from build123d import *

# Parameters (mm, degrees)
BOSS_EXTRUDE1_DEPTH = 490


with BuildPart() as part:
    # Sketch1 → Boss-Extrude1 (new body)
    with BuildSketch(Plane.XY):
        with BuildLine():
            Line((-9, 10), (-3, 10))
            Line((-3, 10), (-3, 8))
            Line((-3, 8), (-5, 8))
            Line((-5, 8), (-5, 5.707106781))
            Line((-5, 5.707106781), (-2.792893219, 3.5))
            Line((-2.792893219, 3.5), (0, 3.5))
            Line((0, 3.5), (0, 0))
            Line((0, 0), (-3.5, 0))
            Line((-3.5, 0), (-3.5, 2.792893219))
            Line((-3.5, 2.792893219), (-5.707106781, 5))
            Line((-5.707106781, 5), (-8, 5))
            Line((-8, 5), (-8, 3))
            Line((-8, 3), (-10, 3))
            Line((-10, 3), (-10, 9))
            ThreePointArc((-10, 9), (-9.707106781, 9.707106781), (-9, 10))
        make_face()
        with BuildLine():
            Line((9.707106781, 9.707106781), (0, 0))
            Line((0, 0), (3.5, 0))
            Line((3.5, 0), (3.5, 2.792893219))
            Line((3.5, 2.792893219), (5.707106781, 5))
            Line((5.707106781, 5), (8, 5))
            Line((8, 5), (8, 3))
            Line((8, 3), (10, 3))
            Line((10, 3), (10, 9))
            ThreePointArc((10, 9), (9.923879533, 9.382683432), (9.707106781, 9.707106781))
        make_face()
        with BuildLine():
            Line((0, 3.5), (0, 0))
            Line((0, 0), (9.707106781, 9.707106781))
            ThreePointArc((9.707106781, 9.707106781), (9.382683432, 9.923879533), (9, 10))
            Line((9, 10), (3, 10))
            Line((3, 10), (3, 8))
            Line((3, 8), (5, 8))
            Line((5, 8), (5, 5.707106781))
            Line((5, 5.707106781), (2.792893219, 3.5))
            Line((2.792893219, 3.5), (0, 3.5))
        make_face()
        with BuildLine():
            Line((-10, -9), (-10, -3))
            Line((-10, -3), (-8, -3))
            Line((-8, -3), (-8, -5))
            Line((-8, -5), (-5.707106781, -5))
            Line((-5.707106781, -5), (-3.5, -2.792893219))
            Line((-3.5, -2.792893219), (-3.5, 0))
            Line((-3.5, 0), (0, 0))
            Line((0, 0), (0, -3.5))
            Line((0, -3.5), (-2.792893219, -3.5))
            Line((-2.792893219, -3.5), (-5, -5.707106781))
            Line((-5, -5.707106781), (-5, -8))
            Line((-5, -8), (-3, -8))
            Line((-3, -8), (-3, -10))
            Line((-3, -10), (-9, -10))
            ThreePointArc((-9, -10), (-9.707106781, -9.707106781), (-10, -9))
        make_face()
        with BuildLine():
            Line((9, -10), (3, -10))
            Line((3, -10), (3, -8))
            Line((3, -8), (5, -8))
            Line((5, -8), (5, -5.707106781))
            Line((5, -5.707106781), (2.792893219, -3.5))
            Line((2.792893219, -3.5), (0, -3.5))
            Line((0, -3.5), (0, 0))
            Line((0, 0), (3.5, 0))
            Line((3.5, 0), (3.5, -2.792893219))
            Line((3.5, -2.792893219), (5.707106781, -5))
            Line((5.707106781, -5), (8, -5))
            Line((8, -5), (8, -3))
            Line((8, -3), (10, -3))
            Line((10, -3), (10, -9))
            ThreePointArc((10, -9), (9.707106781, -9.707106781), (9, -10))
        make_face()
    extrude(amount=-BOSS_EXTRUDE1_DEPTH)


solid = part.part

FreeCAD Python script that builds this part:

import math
import FreeCAD as App
import Part
import Sketcher
Q = App.Units.Quantity

doc = App.newDocument("Part")
body = doc.addObject("PartDesign::Body", "Body")

# Sketch on XY plane
sketch1 = body.newObject("Sketcher::SketchObject", "Sketch")
sketch1.AttachmentSupport = (doc.getObject("XY_Plane"), [""])
sketch1.MapMode = "FlatFace"
sketch1.addGeometry(Part.LineSegment(App.Vector(-3, 10, 0), App.Vector(-9, 10, 0)), False)
sketch1.addGeometry(Part.ArcOfCircle(Part.Circle(App.Vector(-9, 9, 0), App.Vector(0, 0, 1), 1), math.radians(90), math.radians(180)), False)
sketch1.addGeometry(Part.LineSegment(App.Vector(-10, 9, 0), App.Vector(-10, 3, 0)), False)
sketch1.addGeometry(Part.LineSegment(App.Vector(-10, 3, 0), App.Vector(-8, 3, 0)), False)
sketch1.addGeometry(Part.LineSegment(App.Vector(-8, 3, 0), App.Vector(-8, 5, 0)), False)
sketch1.addGeometry(Part.LineSegment(App.Vector(-8, 5, 0), App.Vector(-5.7, 5, 0)), False)
sketch1.addGeometry(Part.LineSegment(App.Vector(-5.7, 5, 0), App.Vector(-3.5, 2.8, 0)), False)
sketch1.addGeometry(Part.LineSegment(App.Vector(-3.5, 2.8, 0), App.Vector(-3.5, -2.8, 0)), False)
sketch1.addGeometry(Part.LineSegment(App.Vector(-3.5, -2.8, 0), App.Vector(-5.7, -5, 0)), False)
sketch1.addGeometry(Part.LineSegment(App.Vector(-5.7, -5, 0), App.Vector(-8, -5, 0)), False)
sketch1.addGeometry(Part.LineSegment(App.Vector(-8, -5, 0), App.Vector(-8, -3, 0)), False)
sketch1.addGeometry(Part.LineSegment(App.Vector(-8, -3, 0), App.Vector(-10, -3, 0)), False)
sketch1.addGeometry(Part.LineSegment(App.Vector(-10, -3, 0), App.Vector(-10, -9, 0)), False)
sketch1.addGeometry(Part.ArcOfCircle(Part.Circle(App.Vector(-9, -9, 0), App.Vector(0, 0, 1), 1), math.radians(-180), math.radians(-90)), False)
sketch1.addGeometry(Part.LineSegment(App.Vector(-9, -10, 0), App.Vector(-3, -10, 0)), False)
sketch1.addGeometry(Part.LineSegment(App.Vector(-3, -10, 0), App.Vector(-3, -8, 0)), False)
sketch1.addGeometry(Part.LineSegment(App.Vector(-3, -8, 0), App.Vector(-5, -8, 0)), False)
sketch1.addGeometry(Part.LineSegment(App.Vector(-5, -8, 0), App.Vector(-5, -5.7, 0)), False)
sketch1.addGeometry(Part.LineSegment(App.Vector(-5, -5.7, 0), App.Vector(-2.8, -3.5, 0)), False)
sketch1.addGeometry(Part.LineSegment(App.Vector(-2.8, -3.5, 0), App.Vector(2.8, -3.5, 0)), False)
sketch1.addGeometry(Part.LineSegment(App.Vector(2.8, -3.5, 0), App.Vector(5, -5.7, 0)), False)
sketch1.addGeometry(Part.LineSegment(App.Vector(5, -5.7, 0), App.Vector(5, -8, 0)), False)
sketch1.addGeometry(Part.LineSegment(App.Vector(5, -8, 0), App.Vector(3, -8, 0)), False)
sketch1.addGeometry(Part.LineSegment(App.Vector(3, -8, 0), App.Vector(3, -10, 0)), False)
sketch1.addGeometry(Part.LineSegment(App.Vector(3, -10, 0), App.Vector(9, -10, 0)), False)
sketch1.addGeometry(Part.ArcOfCircle(Part.Circle(App.Vector(9, -9, 0), App.Vector(0, 0, 1), 1), math.radians(-90), math.radians(0)), False)
sketch1.addGeometry(Part.LineSegment(App.Vector(10, -9, 0), App.Vector(10, -3, 0)), False)
sketch1.addGeometry(Part.LineSegment(App.Vector(10, -3, 0), App.Vector(8, -3, 0)), False)
sketch1.addGeometry(Part.LineSegment(App.Vector(8, -3, 0), App.Vector(8, -5, 0)), False)
sketch1.addGeometry(Part.LineSegment(App.Vector(8, -5, 0), App.Vector(5.7, -5, 0)), False)
sketch1.addGeometry(Part.LineSegment(App.Vector(5.7, -5, 0), App.Vector(3.5, -2.8, 0)), False)
sketch1.addGeometry(Part.LineSegment(App.Vector(3.5, -2.8, 0), App.Vector(3.5, 2.8, 0)), False)
sketch1.addGeometry(Part.LineSegment(App.Vector(3.5, 2.8, 0), App.Vector(5.7, 5, 0)), False)
sketch1.addGeometry(Part.LineSegment(App.Vector(5.7, 5, 0), App.Vector(8, 5, 0)), False)
sketch1.addGeometry(Part.LineSegment(App.Vector(8, 5, 0), App.Vector(8, 3, 0)), False)
sketch1.addGeometry(Part.LineSegment(App.Vector(8, 3, 0), App.Vector(10, 3, 0)), False)
sketch1.addGeometry(Part.LineSegment(App.Vector(10, 3, 0), App.Vector(10, 9, 0)), False)
sketch1.addGeometry(Part.ArcOfCircle(Part.Circle(App.Vector(9, 9, 0), App.Vector(0, 0, 1), 1), math.radians(0), math.radians(45)), False)
sketch1.addGeometry(Part.ArcOfCircle(Part.Circle(App.Vector(9, 9, 0), App.Vector(0, 0, 1), 1), math.radians(45), math.radians(90)), False)
sketch1.addGeometry(Part.LineSegment(App.Vector(9, 10, 0), App.Vector(3, 10, 0)), False)
sketch1.addGeometry(Part.LineSegment(App.Vector(3, 10, 0), App.Vector(3, 8, 0)), False)
sketch1.addGeometry(Part.LineSegment(App.Vector(3, 8, 0), App.Vector(5, 8, 0)), False)
sketch1.addGeometry(Part.LineSegment(App.Vector(5, 8, 0), App.Vector(5, 5.7, 0)), False)
sketch1.addGeometry(Part.LineSegment(App.Vector(5, 5.7, 0), App.Vector(2.8, 3.5, 0)), False)
sketch1.addGeometry(Part.LineSegment(App.Vector(2.8, 3.5, 0), App.Vector(-2.8, 3.5, 0)), False)
sketch1.addGeometry(Part.LineSegment(App.Vector(-2.8, 3.5, 0), App.Vector(-5, 5.7, 0)), False)
sketch1.addGeometry(Part.LineSegment(App.Vector(-5, 5.7, 0), App.Vector(-5, 8, 0)), False)
sketch1.addGeometry(Part.LineSegment(App.Vector(-5, 8, 0), App.Vector(-3, 8, 0)), False)
sketch1.addGeometry(Part.LineSegment(App.Vector(-3, 8, 0), App.Vector(-3, 10, 0)), False)
sketch1.addConstraint(Sketcher.Constraint("Tangent", 0, 2, 1, 1))
sketch1.addConstraint(Sketcher.Constraint("Tangent", 1, 2, 2, 1))
sketch1.addConstraint(Sketcher.Constraint("Coincident", 2, 2, 3, 1))
sketch1.addConstraint(Sketcher.Constraint("Coincident", 3, 2, 4, 1))
sketch1.addConstraint(Sketcher.Constraint("Coincident", 4, 2, 5, 1))
sketch1.addConstraint(Sketcher.Constraint("Coincident", 5, 2, 6, 1))
sketch1.addConstraint(Sketcher.Constraint("Coincident", 6, 2, 7, 1))
sketch1.addConstraint(Sketcher.Constraint("Coincident", 7, 2, 8, 1))
sketch1.addConstraint(Sketcher.Constraint("Coincident", 8, 2, 9, 1))
sketch1.addConstraint(Sketcher.Constraint("Coincident", 9, 2, 10, 1))
sketch1.addConstraint(Sketcher.Constraint("Coincident", 10, 2, 11, 1))
sketch1.addConstraint(Sketcher.Constraint("Coincident", 11, 2, 12, 1))
sketch1.addConstraint(Sketcher.Constraint("Tangent", 12, 2, 13, 1))
sketch1.addConstraint(Sketcher.Constraint("Tangent", 13, 2, 14, 1))
sketch1.addConstraint(Sketcher.Constraint("Coincident", 14, 2, 15, 1))
sketch1.addConstraint(Sketcher.Constraint("Coincident", 15, 2, 16, 1))
sketch1.addConstraint(Sketcher.Constraint("Coincident", 16, 2, 17, 1))
sketch1.addConstraint(Sketcher.Constraint("Coincident", 17, 2, 18, 1))
sketch1.addConstraint(Sketcher.Constraint("Coincident", 18, 2, 19, 1))
sketch1.addConstraint(Sketcher.Constraint("Coincident", 19, 2, 20, 1))
sketch1.addConstraint(Sketcher.Constraint("Coincident", 20, 2, 21, 1))
sketch1.addConstraint(Sketcher.Constraint("Coincident", 21, 2, 22, 1))
sketch1.addConstraint(Sketcher.Constraint("Coincident", 22, 2, 23, 1))
sketch1.addConstraint(Sketcher.Constraint("Coincident", 23, 2, 24, 1))
sketch1.addConstraint(Sketcher.Constraint("Tangent", 24, 2, 25, 1))
sketch1.addConstraint(Sketcher.Constraint("Tangent", 25, 2, 26, 1))
sketch1.addConstraint(Sketcher.Constraint("Coincident", 26, 2, 27, 1))
sketch1.addConstraint(Sketcher.Constraint("Coincident", 27, 2, 28, 1))
sketch1.addConstraint(Sketcher.Constraint("Coincident", 28, 2, 29, 1))
sketch1.addConstraint(Sketcher.Constraint("Coincident", 29, 2, 30, 1))
sketch1.addConstraint(Sketcher.Constraint("Coincident", 30, 2, 31, 1))
sketch1.addConstraint(Sketcher.Constraint("Coincident", 31, 2, 32, 1))
sketch1.addConstraint(Sketcher.Constraint("Coincident", 32, 2, 33, 1))
sketch1.addConstraint(Sketcher.Constraint("Coincident", 33, 2, 34, 1))
sketch1.addConstraint(Sketcher.Constraint("Coincident", 34, 2, 35, 1))
sketch1.addConstraint(Sketcher.Constraint("Coincident", 35, 2, 36, 1))
sketch1.addConstraint(Sketcher.Constraint("Tangent", 36, 2, 37, 1))
sketch1.addConstraint(Sketcher.Constraint("Tangent", 37, 2, 38, 1))
sketch1.addConstraint(Sketcher.Constraint("Tangent", 38, 2, 39, 1))
sketch1.addConstraint(Sketcher.Constraint("Coincident", 39, 2, 40, 1))
sketch1.addConstraint(Sketcher.Constraint("Coincident", 40, 2, 41, 1))
sketch1.addConstraint(Sketcher.Constraint("Coincident", 41, 2, 42, 1))
sketch1.addConstraint(Sketcher.Constraint("Coincident", 42, 2, 43, 1))
sketch1.addConstraint(Sketcher.Constraint("Coincident", 43, 2, 44, 1))
sketch1.addConstraint(Sketcher.Constraint("Coincident", 44, 2, 45, 1))
sketch1.addConstraint(Sketcher.Constraint("Coincident", 45, 2, 46, 1))
sketch1.addConstraint(Sketcher.Constraint("Coincident", 46, 2, 47, 1))
sketch1.addConstraint(Sketcher.Constraint("Coincident", 47, 2, 48, 1))
sketch1.addConstraint(Sketcher.Constraint("Coincident", 48, 2, 0, 1))
sketch1.addConstraint(Sketcher.Constraint("Horizontal", 0))
sketch1.addConstraint(Sketcher.Constraint("Vertical", 2))
sketch1.addConstraint(Sketcher.Constraint("Horizontal", 3))
sketch1.addConstraint(Sketcher.Constraint("Vertical", 4))
sketch1.addConstraint(Sketcher.Constraint("Horizontal", 5))
sketch1.addConstraint(Sketcher.Constraint("Vertical", 7))
sketch1.addConstraint(Sketcher.Constraint("Horizontal", 9))
sketch1.addConstraint(Sketcher.Constraint("Vertical", 10))
sketch1.addConstraint(Sketcher.Constraint("Horizontal", 11))
sketch1.addConstraint(Sketcher.Constraint("Vertical", 12))
sketch1.addConstraint(Sketcher.Constraint("Horizontal", 14))
sketch1.addConstraint(Sketcher.Constraint("Vertical", 15))
sketch1.addConstraint(Sketcher.Constraint("Horizontal", 16))
sketch1.addConstraint(Sketcher.Constraint("Vertical", 17))
sketch1.addConstraint(Sketcher.Constraint("Horizontal", 19))
sketch1.addConstraint(Sketcher.Constraint("Vertical", 21))
sketch1.addConstraint(Sketcher.Constraint("Horizontal", 22))
sketch1.addConstraint(Sketcher.Constraint("Vertical", 23))
sketch1.addConstraint(Sketcher.Constraint("Horizontal", 24))
sketch1.addConstraint(Sketcher.Constraint("Vertical", 26))
sketch1.addConstraint(Sketcher.Constraint("Horizontal", 27))
sketch1.addConstraint(Sketcher.Constraint("Vertical", 28))
sketch1.addConstraint(Sketcher.Constraint("Horizontal", 29))
sketch1.addConstraint(Sketcher.Constraint("Vertical", 31))
sketch1.addConstraint(Sketcher.Constraint("Horizontal", 33))
sketch1.addConstraint(Sketcher.Constraint("Vertical", 34))
sketch1.addConstraint(Sketcher.Constraint("Horizontal", 35))
sketch1.addConstraint(Sketcher.Constraint("Vertical", 36))
sketch1.addConstraint(Sketcher.Constraint("Horizontal", 39))
sketch1.addConstraint(Sketcher.Constraint("Vertical", 40))
sketch1.addConstraint(Sketcher.Constraint("Horizontal", 41))
sketch1.addConstraint(Sketcher.Constraint("Vertical", 42))
sketch1.addConstraint(Sketcher.Constraint("Horizontal", 44))
sketch1.addConstraint(Sketcher.Constraint("Vertical", 46))
sketch1.addConstraint(Sketcher.Constraint("Horizontal", 47))
sketch1.addConstraint(Sketcher.Constraint("Vertical", 48))
sketch1.addConstraint(Sketcher.Constraint("Equal", 1, 13))
sketch1.addConstraint(Sketcher.Constraint("Equal", 13, 25))
sketch1.addConstraint(Sketcher.Constraint("Equal", 25, 37))
sketch1.addConstraint(Sketcher.Constraint("Equal", 37, 38))
sketch1.addConstraint(Sketcher.Constraint("Symmetric", 1, 3, 25, 3, -1, 1))
sketch1.addConstraint(Sketcher.Constraint("Symmetric", 13, 3, 37, 3, -1, 1))
sketch1.addConstraint(Sketcher.Constraint("Symmetric", 3, 2, 27, 2, -1, 1))
sketch1.addConstraint(Sketcher.Constraint("Symmetric", 5, 2, 29, 2, -1, 1))
sketch1.addConstraint(Sketcher.Constraint("Symmetric", 6, 2, 30, 2, -1, 1))
sketch1.addConstraint(Sketcher.Constraint("Symmetric", 8, 2, 32, 2, -1, 1))
sketch1.addConstraint(Sketcher.Constraint("Symmetric", 10, 2, 34, 2, -1, 1))
sketch1.addConstraint(Sketcher.Constraint("Symmetric", 15, 2, 40, 2, -1, 1))
sketch1.addConstraint(Sketcher.Constraint("Symmetric", 17, 2, 42, 2, -1, 1))
sketch1.addConstraint(Sketcher.Constraint("Symmetric", 18, 2, 43, 2, -1, 1))
sketch1.addConstraint(Sketcher.Constraint("Symmetric", 20, 2, 45, 2, -1, 1))
sketch1.addConstraint(Sketcher.Constraint("Symmetric", 22, 2, 47, 2, -1, 1))
sketch1.addConstraint(Sketcher.Constraint("Symmetric", 13, 3, 25, 3, -2))
sketch1.addConstraint(Sketcher.Constraint("Symmetric", 17, 2, 20, 2, -2))
sketch1.addConstraint(Sketcher.Constraint("Symmetric", 15, 2, 22, 2, -2))
sketch1.addConstraint(Sketcher.Constraint("Symmetric", 10, 2, 27, 2, -2))
sketch1.addConstraint(Sketcher.Constraint("Symmetric", 8, 2, 29, 2, -2))
sketch1.addConstraint(Sketcher.Constraint("Perpendicular", 6, 8))
sketch1.addConstraint(Sketcher.Constraint("Parallel", 8, 18))
sketch1.addConstraint(Sketcher.Constraint("Perpendicular", 18, 20))
sketch1.addConstraint(Sketcher.Constraint("Perpendicular", 30, 32))
sketch1.addConstraint(Sketcher.Constraint("Perpendicular", 43, 45))
sketch1.addConstraint(Sketcher.Constraint("Horizontal", 7, 2, 30, 2))
sketch1.addConstraint(Sketcher.Constraint("Equal", 11, 16))
sketch1.addConstraint(Sketcher.Constraint("Equal", 39, 2))
sketch1.addConstraint(Sketcher.Constraint("Equal", 47, 4))
sketch1.addConstraint(Sketcher.Constraint("Equal", 44, 7))
sketch1.addConstraint(Sketcher.Constraint("Equal", 10, 15))
sketch1.addConstraint(Sketcher.Constraint("Equal", 33, 17))
sketch1.addConstraint(Sketcher.Constraint("Equal", 8, 18))
sketch1.addConstraint(Sketcher.Constraint("Radius", 1, Q("1 mm")))
sketch1.addConstraint(Sketcher.Constraint("DistanceX", 0, 2, 0, 1, Q("6 mm")))
sketch1.addConstraint(Sketcher.Constraint("DistanceX", 3, 1, 3, 2, Q("2 mm")))
sketch1.addConstraint(Sketcher.Constraint("DistanceX", 1, 3, -1, 1, Q("9 mm")))
sketch1.addConstraint(Sketcher.Constraint("DistanceX", 6, 2, 31, 2, Q("7 mm")))
sketch1.addConstraint(Sketcher.Constraint("DistanceX", 32, 2, 37, 2, Q("4 mm")))
sketch1.addConstraint(Sketcher.Constraint("Distance", 6, Q("3.12132 mm")))
pad1 = body.newObject("PartDesign::Pad", "Pad")
pad1.Profile = sketch1
pad1.Length = 490
pad1.Reversed = True

doc.recompute()
